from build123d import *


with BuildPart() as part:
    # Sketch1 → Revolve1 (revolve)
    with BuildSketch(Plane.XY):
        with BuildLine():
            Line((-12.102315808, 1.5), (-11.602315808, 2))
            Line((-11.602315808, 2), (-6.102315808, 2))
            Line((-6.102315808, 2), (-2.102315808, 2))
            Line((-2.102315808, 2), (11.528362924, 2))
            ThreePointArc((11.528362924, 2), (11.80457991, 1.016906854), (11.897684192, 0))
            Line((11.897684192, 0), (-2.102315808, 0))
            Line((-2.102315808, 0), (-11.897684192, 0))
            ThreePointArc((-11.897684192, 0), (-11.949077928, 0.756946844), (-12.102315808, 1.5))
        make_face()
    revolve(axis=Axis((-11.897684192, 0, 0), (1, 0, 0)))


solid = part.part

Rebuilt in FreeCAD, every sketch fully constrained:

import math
import FreeCAD as App
import Part
import Sketcher
Q = App.Units.Quantity

doc = App.newDocument("Part")
body = doc.addObject("PartDesign::Body", "Body")

# Sketch on XY plane
sketch1 = doc.addObject("Sketcher::SketchObject", "Sketch")
body.addObject(sketch1)
sketch1.AttachmentSupport = (doc.XY_Plane, [""])
sketch1.MapMode = "FlatFace"
sketch1.addGeometry([
    Part.LineSegment(App.Vector(-11.6, 2, 0), App.Vector(-12.1, 1.5, 0)),  # 0
    Part.ArcOfCircle(Part.Circle(App.Vector(-17.5, 0, 0), App.Vector(0, 0, 1), 5.6), math.radians(0), math.radians(15.54)),  # 1
    Part.LineSegment(App.Vector(-11.9, 0, 0), App.Vector(11.9, 0, 0)),  # 2
    Part.ArcOfCircle(Part.Circle(App.Vector(6.3, 0, 0), App.Vector(0, 0, 1), 5.6), math.radians(0), math.radians(21)),  # 3
    Part.LineSegment(App.Vector(11.5, 2, 0), App.Vector(-11.6, 2, 0)),  # 4
], False)
sketch1.addConstraint([
    Sketcher.Constraint("Coincident", 0, 2, 1, 2),
    Sketcher.Constraint("Coincident", 1, 1, 2, 1),
    Sketcher.Constraint("Coincident", 2, 2, 3, 1),
    Sketcher.Constraint("Coincident", 3, 2, 4, 1),
    Sketcher.Constraint("Coincident", 4, 2, 0, 1),
    Sketcher.Constraint("Horizontal", 2),
    Sketcher.Constraint("Horizontal", 4),
    Sketcher.Constraint("Equal", 1, 3),
    Sketcher.Constraint("Symmetric", 1, 1, 2, 2, -1, 1),
    Sketcher.Constraint("PointOnObject", 1, 3, -1),
    Sketcher.Constraint("PointOnObject", 3, 3, -1),
    Sketcher.Constraint("Radius", 1, Q("5.6 mm")),
    Sketcher.Constraint("Angle", 0, Q("-135 deg")),
    Sketcher.Constraint("DistanceY", -1, 1, 3, 2, Q("2 mm")),
    Sketcher.Constraint("DistanceX", 0, 2, 2, 2, Q("24 mm")),
    Sketcher.Constraint("DistanceY", -1, 1, 0, 2, Q("1.5 mm")),
])
revolution = doc.addObject("PartDesign::Revolution", "Revolution")
body.addObject(revolution)
revolution.Profile = sketch1
revolution.ReferenceAxis = (sketch1, ["H_Axis"])
revolution.Angle = 360

doc.recompute()
